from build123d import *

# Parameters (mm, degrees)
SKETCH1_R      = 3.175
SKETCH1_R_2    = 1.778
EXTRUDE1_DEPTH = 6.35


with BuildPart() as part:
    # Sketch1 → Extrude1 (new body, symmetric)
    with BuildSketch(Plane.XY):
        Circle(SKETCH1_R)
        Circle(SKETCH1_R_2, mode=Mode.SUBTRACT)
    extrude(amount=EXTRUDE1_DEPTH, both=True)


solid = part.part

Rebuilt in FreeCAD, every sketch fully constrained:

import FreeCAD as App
import Part
import Sketcher

V = App.Vector
Q = App.Units.Quantity

doc = App.newDocument("Part")
body = doc.addObject("PartDesign::Body", "Body")

sketch1 = body.newObject("Sketcher::SketchObject", "Sketch")
sketch1.AttachmentSupport = (doc.getObject("XY_Plane"), [""])
sketch1.MapMode = "FlatFace"
sketch1.addGeometry([
    Part.Circle(V(0, 0, 0), V(0, 0, 1), 3.2),
    Part.Circle(V(0, 0, 0), V(0, 0, 1), 1.8),
], False)
sketch1.addConstraint([
    Sketcher.Constraint("Coincident", 0, 3, -1, 1),
    Sketcher.Constraint("Coincident", 1, 3, -1, 1),
    Sketcher.Constraint("Diameter", 0, Q("0.25 in")),
    Sketcher.Constraint("Diameter", 1, Q("0.14 in")),
])
pad1 = body.newObject("PartDesign::Pad", "Pad")
pad1.Profile = sketch1
pad1.Length = Q("0.5 in")
pad1.Midplane = True

doc.recompute()
